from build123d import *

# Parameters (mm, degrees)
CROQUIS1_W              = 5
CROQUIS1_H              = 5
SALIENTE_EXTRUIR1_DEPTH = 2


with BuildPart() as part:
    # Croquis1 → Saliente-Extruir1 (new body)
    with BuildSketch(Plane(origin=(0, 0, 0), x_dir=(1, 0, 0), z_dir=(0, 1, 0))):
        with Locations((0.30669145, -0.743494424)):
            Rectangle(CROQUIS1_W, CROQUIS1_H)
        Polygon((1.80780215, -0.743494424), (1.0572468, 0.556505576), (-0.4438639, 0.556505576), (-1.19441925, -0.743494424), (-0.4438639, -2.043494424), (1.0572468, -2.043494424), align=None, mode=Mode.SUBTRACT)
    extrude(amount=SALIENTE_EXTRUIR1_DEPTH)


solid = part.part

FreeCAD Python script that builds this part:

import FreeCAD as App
import Part
import Sketcher
from FreeCAD import Vector
Q = App.Units.Quantity


def add_polygon(sketch, points):
    """Adds a closed chain of lines whose ends are joined by coincident constraints."""
    first, n = sketch.GeometryCount, len(points)
    for a, b in zip(points, points[1:] + points[:1]):
        sketch.addGeometry(Part.LineSegment(App.Vector(*a, 0), App.Vector(*b, 0)), False)
    for i in range(n):
        sketch.addConstraint(Sketcher.Constraint("Coincident", first + i, 2, first + (i + 1) % n, 1))

doc = App.newDocument("Part")
body = doc.addObject("PartDesign::Body", "Body")

# Sketch on XZ plane
sketch1 = body.newObject("Sketcher::SketchObject", "Sketch")
sketch1.AttachmentSupport = (doc.getObject("XZ_Plane"), [""])
sketch1.MapMode = "FlatFace"
add_polygon(sketch1, [(-2.2, -1.8), (-2.2, 3.2), (2.8, 3.2), (2.8, -1.8)])  # lines 0-3
add_polygon(sketch1, [(1.1, -0.6), (1.8, 0.7), (1.1, 2), (-0.4, 2), (-1.2, 0.7), (-0.4, -0.6)])  # lines 4-9
sketch1.addConstraint([
    Sketcher.Constraint("Vertical", 0),
    Sketcher.Constraint("Horizontal", 1),
    Sketcher.Constraint("Vertical", 2),
    Sketcher.Constraint("Horizontal", 3),
    Sketcher.Constraint("Horizontal", 6),
    Sketcher.Constraint("Horizontal", 9),
    Sketcher.Constraint("Parallel", 4, 7),
    Sketcher.Constraint("Parallel", 5, 8),
    Sketcher.Constraint("Horizontal", 4, 2, 7, 2),
    Sketcher.Constraint("Vertical", 6, 2, 8, 2),
    Sketcher.Constraint("Vertical", 5, 2, 9, 2),
    Sketcher.Constraint("Equal", 3, 0),
    Sketcher.Constraint("DistanceX", 1, 1, 1, 2, Q("5 mm")),
    Sketcher.Constraint("Angle", 4, Q("60 deg")),
    Sketcher.Constraint("DistanceY", 4, 2, 1, 2, Q("2.5 mm")),
    Sketcher.Constraint("DistanceY", 4, 2, 5, 2, Q("1.3 mm")),
    Sketcher.Constraint("DistanceX", 6, 2, 6, 1, Q("1.501111 mm")),
    Sketcher.Constraint("DistanceX", 0, 2, -1, 1, Q("2.193309 mm")),
    Sketcher.Constraint("DistanceX", 7, 2, -1, 1, Q("1.194419 mm")),
    Sketcher.Constraint("DistanceY", -1, 1, 0, 2, Q("3.243494 mm")),
])
pad1 = body.newObject("PartDesign::Pad", "Pad")
pad1.Profile = sketch1
pad1.Length = 2
pad1.Reversed = True

doc.recompute()
